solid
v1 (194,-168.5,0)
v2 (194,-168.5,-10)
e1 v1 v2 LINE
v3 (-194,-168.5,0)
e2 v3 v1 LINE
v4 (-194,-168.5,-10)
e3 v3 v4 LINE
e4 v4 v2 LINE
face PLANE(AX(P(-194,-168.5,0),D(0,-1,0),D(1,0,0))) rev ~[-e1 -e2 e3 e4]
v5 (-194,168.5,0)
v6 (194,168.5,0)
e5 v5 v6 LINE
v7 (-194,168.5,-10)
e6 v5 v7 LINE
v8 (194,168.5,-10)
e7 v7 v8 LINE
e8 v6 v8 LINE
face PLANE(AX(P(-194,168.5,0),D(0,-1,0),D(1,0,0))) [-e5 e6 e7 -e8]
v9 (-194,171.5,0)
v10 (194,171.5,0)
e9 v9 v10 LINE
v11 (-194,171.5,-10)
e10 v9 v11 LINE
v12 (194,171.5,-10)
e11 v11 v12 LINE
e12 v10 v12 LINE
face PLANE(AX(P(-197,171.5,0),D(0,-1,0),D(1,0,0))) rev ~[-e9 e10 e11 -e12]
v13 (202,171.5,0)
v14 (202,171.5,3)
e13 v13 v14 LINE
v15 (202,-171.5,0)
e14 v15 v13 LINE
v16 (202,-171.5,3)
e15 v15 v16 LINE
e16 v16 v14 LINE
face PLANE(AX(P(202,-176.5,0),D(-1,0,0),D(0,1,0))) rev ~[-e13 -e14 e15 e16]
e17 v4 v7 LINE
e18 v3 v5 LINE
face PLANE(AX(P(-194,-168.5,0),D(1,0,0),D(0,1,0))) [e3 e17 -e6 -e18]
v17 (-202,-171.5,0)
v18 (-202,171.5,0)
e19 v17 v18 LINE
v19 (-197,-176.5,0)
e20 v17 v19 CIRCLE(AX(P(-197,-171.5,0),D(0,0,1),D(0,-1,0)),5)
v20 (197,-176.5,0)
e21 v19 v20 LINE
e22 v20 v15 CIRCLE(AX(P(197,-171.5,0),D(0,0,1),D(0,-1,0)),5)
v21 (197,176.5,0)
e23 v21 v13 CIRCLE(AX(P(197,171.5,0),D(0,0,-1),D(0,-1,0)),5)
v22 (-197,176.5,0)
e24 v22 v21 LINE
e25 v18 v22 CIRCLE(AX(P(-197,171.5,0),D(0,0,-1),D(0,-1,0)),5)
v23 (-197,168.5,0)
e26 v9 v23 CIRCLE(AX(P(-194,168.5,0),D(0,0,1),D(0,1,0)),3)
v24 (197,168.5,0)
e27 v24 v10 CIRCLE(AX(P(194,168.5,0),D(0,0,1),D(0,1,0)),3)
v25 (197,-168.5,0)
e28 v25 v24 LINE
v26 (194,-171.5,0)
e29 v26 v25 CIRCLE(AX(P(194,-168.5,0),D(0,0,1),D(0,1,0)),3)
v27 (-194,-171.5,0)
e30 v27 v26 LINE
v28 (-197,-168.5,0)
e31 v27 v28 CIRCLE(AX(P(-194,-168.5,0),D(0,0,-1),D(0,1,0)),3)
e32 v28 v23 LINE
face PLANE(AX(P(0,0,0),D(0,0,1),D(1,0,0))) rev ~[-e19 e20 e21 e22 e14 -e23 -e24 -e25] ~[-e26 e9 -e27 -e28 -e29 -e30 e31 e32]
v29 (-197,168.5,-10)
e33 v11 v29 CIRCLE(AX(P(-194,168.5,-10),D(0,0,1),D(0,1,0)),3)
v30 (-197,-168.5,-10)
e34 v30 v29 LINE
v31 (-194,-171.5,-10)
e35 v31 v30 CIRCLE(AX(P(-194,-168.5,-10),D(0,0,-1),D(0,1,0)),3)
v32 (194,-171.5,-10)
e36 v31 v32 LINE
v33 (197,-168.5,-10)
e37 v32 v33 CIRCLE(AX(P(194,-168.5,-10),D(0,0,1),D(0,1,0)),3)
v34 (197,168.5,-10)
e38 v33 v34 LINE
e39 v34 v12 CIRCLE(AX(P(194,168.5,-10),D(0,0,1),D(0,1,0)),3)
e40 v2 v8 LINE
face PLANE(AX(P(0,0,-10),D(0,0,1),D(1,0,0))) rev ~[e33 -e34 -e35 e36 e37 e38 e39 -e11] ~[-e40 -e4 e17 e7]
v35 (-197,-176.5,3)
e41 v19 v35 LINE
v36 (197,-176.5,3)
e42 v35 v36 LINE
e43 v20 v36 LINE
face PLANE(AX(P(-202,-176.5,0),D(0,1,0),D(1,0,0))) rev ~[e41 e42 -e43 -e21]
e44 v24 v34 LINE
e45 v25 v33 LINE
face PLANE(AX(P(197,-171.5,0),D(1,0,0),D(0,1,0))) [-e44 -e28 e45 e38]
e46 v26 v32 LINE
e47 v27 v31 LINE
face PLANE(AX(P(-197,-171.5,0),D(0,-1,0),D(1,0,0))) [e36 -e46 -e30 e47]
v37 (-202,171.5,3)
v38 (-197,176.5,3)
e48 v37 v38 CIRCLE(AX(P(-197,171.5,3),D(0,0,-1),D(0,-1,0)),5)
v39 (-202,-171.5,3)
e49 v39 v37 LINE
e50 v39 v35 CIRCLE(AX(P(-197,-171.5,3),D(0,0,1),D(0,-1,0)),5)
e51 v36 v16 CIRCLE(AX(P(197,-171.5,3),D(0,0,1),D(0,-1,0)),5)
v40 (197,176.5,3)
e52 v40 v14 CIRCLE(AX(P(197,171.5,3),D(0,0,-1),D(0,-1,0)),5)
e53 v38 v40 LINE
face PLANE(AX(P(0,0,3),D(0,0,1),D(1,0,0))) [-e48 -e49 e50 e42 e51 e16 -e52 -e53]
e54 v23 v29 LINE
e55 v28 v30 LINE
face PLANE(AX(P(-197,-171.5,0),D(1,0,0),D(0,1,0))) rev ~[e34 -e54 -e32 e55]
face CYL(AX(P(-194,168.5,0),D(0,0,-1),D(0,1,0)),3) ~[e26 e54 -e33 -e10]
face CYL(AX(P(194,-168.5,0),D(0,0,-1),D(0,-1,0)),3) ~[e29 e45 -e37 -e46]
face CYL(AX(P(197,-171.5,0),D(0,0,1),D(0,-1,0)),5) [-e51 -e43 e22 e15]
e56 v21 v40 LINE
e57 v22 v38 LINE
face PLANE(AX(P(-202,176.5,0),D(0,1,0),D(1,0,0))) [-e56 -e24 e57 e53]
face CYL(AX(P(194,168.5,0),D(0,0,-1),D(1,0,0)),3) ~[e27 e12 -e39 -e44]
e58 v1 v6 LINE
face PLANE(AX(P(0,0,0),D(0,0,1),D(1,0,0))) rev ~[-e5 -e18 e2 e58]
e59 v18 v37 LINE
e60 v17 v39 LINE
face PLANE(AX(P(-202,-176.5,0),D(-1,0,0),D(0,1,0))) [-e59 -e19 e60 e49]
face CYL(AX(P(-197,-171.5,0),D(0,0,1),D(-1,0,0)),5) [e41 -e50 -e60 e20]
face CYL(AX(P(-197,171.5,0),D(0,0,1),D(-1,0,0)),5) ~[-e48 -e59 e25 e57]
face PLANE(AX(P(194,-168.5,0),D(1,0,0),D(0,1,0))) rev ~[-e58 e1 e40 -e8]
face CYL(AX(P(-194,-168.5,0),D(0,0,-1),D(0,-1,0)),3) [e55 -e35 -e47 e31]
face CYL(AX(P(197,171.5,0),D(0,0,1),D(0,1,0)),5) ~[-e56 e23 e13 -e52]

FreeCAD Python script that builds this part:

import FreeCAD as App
import Part
import Sketcher


def edges_at(feature, points):
    """Names of the edges that pass closest to the given points."""
    edges = feature.Shape.Edges
    near = lambda p: min(range(len(edges)), key=lambda i: edges[i].distToShape(Part.Vertex(*p))[0])
    return sorted({f"Edge{near(p) + 1}" for p in points})

doc = App.newDocument("Part")
body = doc.addObject("PartDesign::Body", "Body")

sketch1 = doc.addObject("Sketcher::SketchObject", "Sketch")
body.addObject(sketch1)
sketch1.AttachmentSupport = (doc.XY_Plane, [""])
sketch1.MapMode = "FlatFace"
sketch1.addGeometry(Part.LineSegment(App.Vector(-197, 172, 0), App.Vector(-197, -172, 0)), False)
sketch1.addGeometry(Part.LineSegment(App.Vector(-197, -172, 0), App.Vector(197, -172, 0)), False)
sketch1.addGeometry(Part.LineSegment(App.Vector(197, -172, 0), App.Vector(197, 172, 0)), False)
sketch1.addGeometry(Part.LineSegment(App.Vector(197, 172, 0), App.Vector(-197, 172, 0)), False)
sketch1.addGeometry(Part.LineSegment(App.Vector(194, -168, 0), App.Vector(-194, -168, 0)), False)
sketch1.addGeometry(Part.LineSegment(App.Vector(-194, -168, 0), App.Vector(-194, 168, 0)), False)
sketch1.addGeometry(Part.LineSegment(App.Vector(-194, 168, 0), App.Vector(194, 168, 0)), False)
sketch1.addGeometry(Part.LineSegment(App.Vector(194, 168, 0), App.Vector(194, -168, 0)), False)
sketch1.addConstraint(Sketcher.Constraint("Coincident", 0, 2, 1, 1))
sketch1.addConstraint(Sketcher.Constraint("Coincident", 1, 2, 2, 1))
sketch1.addConstraint(Sketcher.Constraint("Coincident", 2, 2, 3, 1))
sketch1.addConstraint(Sketcher.Constraint("Coincident", 3, 2, 0, 1))
sketch1.addConstraint(Sketcher.Constraint("Coincident", 4, 2, 5, 1))
sketch1.addConstraint(Sketcher.Constraint("Coincident", 5, 2, 6, 1))
sketch1.addConstraint(Sketcher.Constraint("Coincident", 6, 2, 7, 1))
sketch1.addConstraint(Sketcher.Constraint("Coincident", 7, 2, 4, 1))
sketch1.addConstraint(Sketcher.Constraint("Vertical", 0))
sketch1.addConstraint(Sketcher.Constraint("Horizontal", 1))
sketch1.addConstraint(Sketcher.Constraint("Vertical", 2))
sketch1.addConstraint(Sketcher.Constraint("Horizontal", 3))
sketch1.addConstraint(Sketcher.Constraint("Horizontal", 4))
sketch1.addConstraint(Sketcher.Constraint("Vertical", 5))
sketch1.addConstraint(Sketcher.Constraint("Horizontal", 6))
sketch1.addConstraint(Sketcher.Constraint("Vertical", 7))
sketch1.addConstraint(Sketcher.Constraint("Symmetric", 0, 2, 2, 2, -1, 1))
sketch1.addConstraint(Sketcher.Constraint("Symmetric", 4, 2, 6, 2, -1, 1))
sketch1.addConstraint(Sketcher.Constraint("DistanceX", 1, 1, 1, 2, 394.0))
sketch1.addConstraint(Sketcher.Constraint("DistanceX", 4, 2, 4, 1, 388.0))
sketch1.addConstraint(Sketcher.Constraint("DistanceY", 0, 2, 0, 1, 343.0))
sketch1.addConstraint(Sketcher.Constraint("DistanceY", 5, 1, 5, 2, 337.0))
pad1 = doc.addObject("PartDesign::Pad", "Pad")
body.addObject(pad1)
pad1.Profile = sketch1
pad1.Length = 10
pad1.Reversed = True

sketch2 = doc.addObject("Sketcher::SketchObject", "Sketch001")
body.addObject(sketch2)
sketch2.AttachmentSupport = (doc.XY_Plane, [""])
sketch2.MapMode = "FlatFace"
sketch2.addGeometry(Part.LineSegment(App.Vector(-202, 176, 0), App.Vector(-202, -176, 0)), False)
sketch2.addGeometry(Part.LineSegment(App.Vector(-202, -176, 0), App.Vector(202, -176, 0)), False)
sketch2.addGeometry(Part.LineSegment(App.Vector(202, -176, 0), App.Vector(202, 176, 0)), False)
sketch2.addGeometry(Part.LineSegment(App.Vector(202, 176, 0), App.Vector(-202, 176, 0)), False)
sketch2.addConstraint(Sketcher.Constraint("Coincident", 0, 2, 1, 1))
sketch2.addConstraint(Sketcher.Constraint("Coincident", 1, 2, 2, 1))
sketch2.addConstraint(Sketcher.Constraint("Coincident", 2, 2, 3, 1))
sketch2.addConstraint(Sketcher.Constraint("Coincident", 3, 2, 0, 1))
sketch2.addConstraint(Sketcher.Constraint("Vertical", 0))
sketch2.addConstraint(Sketcher.Constraint("Horizontal", 1))
sketch2.addConstraint(Sketcher.Constraint("Vertical", 2))
sketch2.addConstraint(Sketcher.Constraint("Horizontal", 3))
sketch2.addConstraint(Sketcher.Constraint("Symmetric", 0, 2, 2, 2, -1, 1))
sketch2.addConstraint(Sketcher.Constraint("DistanceX", 1, 1, 1, 2, 404.0))
sketch2.addConstraint(Sketcher.Constraint("DistanceY", 0, 2, 0, 1, 353.0))
pad2 = doc.addObject("PartDesign::Pad", "Pad001")
body.addObject(pad2)
pad2.Profile = sketch2
pad2.Length = 3
doc.recompute()

fillet = doc.addObject("PartDesign::Fillet", "Fillet")
body.addObject(fillet)
fillet.Base = (pad2, edges_at(pad2, [
    (-202, -176.5, 1.5),
    (202, -176.5, 1.5),
    (202, 176.5, 1.5),
    (-202, 176.5, 1.5),
]))
fillet.Radius = 5
doc.recompute()

fillet2 = doc.addObject("PartDesign::Fillet", "Fillet001")
body.addObject(fillet2)
fillet2.Base = (fillet, edges_at(fillet, [
    (197, 171.5, -5),
    (-197, 171.5, -5),
    (-197, -171.5, -5),
    (197, -171.5, -5),
]))
fillet2.Radius = 3

doc.recompute()
